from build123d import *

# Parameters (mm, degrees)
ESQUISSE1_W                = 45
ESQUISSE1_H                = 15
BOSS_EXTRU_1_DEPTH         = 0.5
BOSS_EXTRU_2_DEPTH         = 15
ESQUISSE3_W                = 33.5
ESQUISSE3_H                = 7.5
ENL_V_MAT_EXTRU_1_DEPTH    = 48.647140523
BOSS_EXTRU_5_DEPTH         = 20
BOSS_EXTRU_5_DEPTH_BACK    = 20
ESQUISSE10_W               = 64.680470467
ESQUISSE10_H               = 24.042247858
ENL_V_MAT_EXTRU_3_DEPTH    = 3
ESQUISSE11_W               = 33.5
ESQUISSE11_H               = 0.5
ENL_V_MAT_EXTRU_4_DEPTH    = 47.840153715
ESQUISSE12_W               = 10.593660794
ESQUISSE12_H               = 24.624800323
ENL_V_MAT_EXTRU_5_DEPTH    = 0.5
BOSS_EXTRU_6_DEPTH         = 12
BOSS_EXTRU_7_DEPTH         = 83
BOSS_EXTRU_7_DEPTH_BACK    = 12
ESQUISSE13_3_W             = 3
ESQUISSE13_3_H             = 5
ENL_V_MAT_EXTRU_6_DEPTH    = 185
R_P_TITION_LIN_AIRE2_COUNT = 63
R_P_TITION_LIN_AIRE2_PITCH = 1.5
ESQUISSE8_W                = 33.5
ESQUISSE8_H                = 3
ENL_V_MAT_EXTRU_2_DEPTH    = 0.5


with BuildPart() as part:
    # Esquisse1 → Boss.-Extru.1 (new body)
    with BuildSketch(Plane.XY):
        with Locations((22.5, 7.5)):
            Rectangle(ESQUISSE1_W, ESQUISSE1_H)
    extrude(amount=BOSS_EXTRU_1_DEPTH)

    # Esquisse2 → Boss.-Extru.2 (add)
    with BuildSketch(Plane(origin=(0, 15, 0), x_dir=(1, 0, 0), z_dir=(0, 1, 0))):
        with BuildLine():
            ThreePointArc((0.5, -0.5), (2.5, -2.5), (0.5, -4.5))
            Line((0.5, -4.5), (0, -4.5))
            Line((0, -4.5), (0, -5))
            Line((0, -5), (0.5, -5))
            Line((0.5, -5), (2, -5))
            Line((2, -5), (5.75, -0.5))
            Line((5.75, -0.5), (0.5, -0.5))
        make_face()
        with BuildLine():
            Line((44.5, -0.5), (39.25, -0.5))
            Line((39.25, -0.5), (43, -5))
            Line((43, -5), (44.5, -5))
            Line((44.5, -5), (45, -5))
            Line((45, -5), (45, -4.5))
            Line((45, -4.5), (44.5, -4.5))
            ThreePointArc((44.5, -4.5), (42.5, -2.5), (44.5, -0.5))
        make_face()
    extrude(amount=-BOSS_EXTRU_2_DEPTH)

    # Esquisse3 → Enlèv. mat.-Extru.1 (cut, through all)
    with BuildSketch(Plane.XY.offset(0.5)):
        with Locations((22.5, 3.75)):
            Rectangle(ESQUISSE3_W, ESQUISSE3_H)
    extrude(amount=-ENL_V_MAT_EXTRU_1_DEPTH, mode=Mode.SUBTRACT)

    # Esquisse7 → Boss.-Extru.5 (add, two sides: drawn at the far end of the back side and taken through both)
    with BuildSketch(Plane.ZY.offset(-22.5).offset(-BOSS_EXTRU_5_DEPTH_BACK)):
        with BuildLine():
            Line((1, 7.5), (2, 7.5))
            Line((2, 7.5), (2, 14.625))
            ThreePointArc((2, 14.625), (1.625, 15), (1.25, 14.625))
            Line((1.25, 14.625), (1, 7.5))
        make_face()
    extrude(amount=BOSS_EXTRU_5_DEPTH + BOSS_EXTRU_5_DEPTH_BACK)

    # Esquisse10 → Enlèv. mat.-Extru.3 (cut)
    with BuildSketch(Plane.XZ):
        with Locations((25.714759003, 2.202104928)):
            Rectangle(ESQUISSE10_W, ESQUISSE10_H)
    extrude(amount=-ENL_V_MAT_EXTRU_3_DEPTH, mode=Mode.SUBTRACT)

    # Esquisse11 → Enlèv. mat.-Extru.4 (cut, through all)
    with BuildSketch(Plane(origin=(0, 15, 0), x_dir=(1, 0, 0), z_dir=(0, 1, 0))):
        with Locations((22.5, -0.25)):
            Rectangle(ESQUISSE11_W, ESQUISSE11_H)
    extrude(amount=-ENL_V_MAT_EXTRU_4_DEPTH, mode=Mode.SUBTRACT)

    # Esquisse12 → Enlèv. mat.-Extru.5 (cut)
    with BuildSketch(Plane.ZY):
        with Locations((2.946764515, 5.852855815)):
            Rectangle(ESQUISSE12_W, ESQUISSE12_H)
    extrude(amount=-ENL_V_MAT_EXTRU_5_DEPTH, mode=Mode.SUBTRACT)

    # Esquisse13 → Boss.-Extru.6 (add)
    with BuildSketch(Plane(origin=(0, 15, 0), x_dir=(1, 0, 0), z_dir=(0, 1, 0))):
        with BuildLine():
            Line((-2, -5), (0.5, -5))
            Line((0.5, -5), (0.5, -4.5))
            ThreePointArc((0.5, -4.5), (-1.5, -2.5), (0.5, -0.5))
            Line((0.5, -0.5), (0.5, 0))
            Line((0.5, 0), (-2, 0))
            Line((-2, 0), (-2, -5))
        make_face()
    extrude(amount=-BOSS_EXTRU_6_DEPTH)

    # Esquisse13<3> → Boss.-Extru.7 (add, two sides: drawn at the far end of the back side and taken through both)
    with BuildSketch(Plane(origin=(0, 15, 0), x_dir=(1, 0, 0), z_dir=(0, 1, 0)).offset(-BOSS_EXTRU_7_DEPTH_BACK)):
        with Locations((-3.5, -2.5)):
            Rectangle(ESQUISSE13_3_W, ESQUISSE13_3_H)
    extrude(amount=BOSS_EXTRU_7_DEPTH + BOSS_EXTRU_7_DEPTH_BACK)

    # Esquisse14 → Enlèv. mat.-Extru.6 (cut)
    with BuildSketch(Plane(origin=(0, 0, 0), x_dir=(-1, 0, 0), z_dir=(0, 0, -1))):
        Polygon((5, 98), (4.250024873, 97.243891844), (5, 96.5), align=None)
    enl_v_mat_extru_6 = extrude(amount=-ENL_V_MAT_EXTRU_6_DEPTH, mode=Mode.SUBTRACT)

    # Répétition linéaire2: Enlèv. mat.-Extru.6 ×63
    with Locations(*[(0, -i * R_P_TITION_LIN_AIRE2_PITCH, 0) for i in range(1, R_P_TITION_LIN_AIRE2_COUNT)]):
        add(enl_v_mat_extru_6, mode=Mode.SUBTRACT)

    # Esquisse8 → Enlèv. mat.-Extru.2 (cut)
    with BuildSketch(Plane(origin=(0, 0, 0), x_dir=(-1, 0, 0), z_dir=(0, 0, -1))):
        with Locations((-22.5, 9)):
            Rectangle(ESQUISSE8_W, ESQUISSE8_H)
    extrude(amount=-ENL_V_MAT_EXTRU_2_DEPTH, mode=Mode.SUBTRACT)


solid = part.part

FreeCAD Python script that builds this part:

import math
import FreeCAD as App
import Part
import Sketcher
from FreeCAD import Vector

doc = App.newDocument("Part")
body = doc.addObject("PartDesign::Body", "Body")

sketch1 = body.newObject("Sketcher::SketchObject", "Sketch")
sketch1.AttachmentSupport = (doc.getObject("XY_Plane"), [""])
sketch1.MapMode = "FlatFace"
sketch1.addGeometry([
    Part.LineSegment(Vector(0, 15, 0), Vector(0, 0, 0)),
    Part.LineSegment(Vector(0, 0, 0), Vector(45, 0, 0)),
    Part.LineSegment(Vector(45, 0, 0), Vector(45, 15, 0)),
    Part.LineSegment(Vector(45, 15, 0), Vector(0, 15, 0)),
], False)
sketch1.addConstraint([
    Sketcher.Constraint("Coincident", 0, 2, 1, 1),
    Sketcher.Constraint("Coincident", 1, 2, 2, 1),
    Sketcher.Constraint("Coincident", 2, 2, 3, 1),
    Sketcher.Constraint("Coincident", 3, 2, 0, 1),
    Sketcher.Constraint("Vertical", 0),
    Sketcher.Constraint("Horizontal", 1),
    Sketcher.Constraint("Vertical", 2),
    Sketcher.Constraint("Horizontal", 3),
    Sketcher.Constraint("Coincident", 0, 2, -1, 1),
    Sketcher.Constraint("DistanceX", 1, 1, 1, 2, 45.0),
    Sketcher.Constraint("DistanceY", 0, 2, 0, 1, 15.0),
])
pad1 = body.newObject("PartDesign::Pad", "Pad")
pad1.Profile = sketch1
pad1.Length = 0.5

sketch2 = body.newObject("Sketcher::SketchObject", "Sketch001")
sketch2.AttachmentSupport = (doc.getObject("XZ_Plane"), [""])
sketch2.MapMode = "FlatFace"
sketch2.AttachmentOffset = App.Placement(Vector(0, 0, -15), App.Rotation())
sketch2.addGeometry([
    Part.ArcOfCircle(Part.Circle(Vector(0.5, 2.5, 0), Vector(0, 0, 1), 2), math.radians(-90), math.radians(90)),
    Part.LineSegment(Vector(0.5, 4.5, 0), Vector(0, 4.5, 0)),
    Part.LineSegment(Vector(0, 4.5, 0), Vector(0, 5, 0)),
    Part.LineSegment(Vector(0, 5, 0), Vector(2, 5, 0)),
    Part.LineSegment(Vector(2, 5, 0), Vector(5.75, 0.5, 0)),
    Part.LineSegment(Vector(5.75, 0.5, 0), Vector(0.5, 0.5, 0)),
    Part.LineSegment(Vector(44.5, 0.5, 0), Vector(39.25, 0.5, 0)),
    Part.LineSegment(Vector(39.25, 0.5, 0), Vector(43, 5, 0)),
    Part.LineSegment(Vector(43, 5, 0), Vector(45, 5, 0)),
    Part.LineSegment(Vector(45, 5, 0), Vector(45, 4.5, 0)),
    Part.LineSegment(Vector(45, 4.5, 0), Vector(44.5, 4.5, 0)),
    Part.ArcOfCircle(Part.Circle(Vector(44.5, 2.5, 0), Vector(0, 0, 1), 2), math.radians(90), math.radians(270)),
], False)
sketch2.addConstraint([
    Sketcher.Constraint("Tangent", 0, 2, 1, 1),
    Sketcher.Constraint("Coincident", 1, 2, 2, 1),
    Sketcher.Constraint("Coincident", 2, 2, 3, 1),
    Sketcher.Constraint("Coincident", 3, 2, 4, 1),
    Sketcher.Constraint("Coincident", 4, 2, 5, 1),
    Sketcher.Constraint("Tangent", 5, 2, 0, 1),
    Sketcher.Constraint("Coincident", 6, 2, 7, 1),
    Sketcher.Constraint("Coincident", 7, 2, 8, 1),
    Sketcher.Constraint("Coincident", 8, 2, 9, 1),
    Sketcher.Constraint("Coincident", 9, 2, 10, 1),
    Sketcher.Constraint("Tangent", 10, 2, 11, 1),
    Sketcher.Constraint("Tangent", 11, 2, 6, 1),
    Sketcher.Constraint("Horizontal", 1),
    Sketcher.Constraint("Vertical", 2),
    Sketcher.Constraint("Horizontal", 3),
    Sketcher.Constraint("Horizontal", 5),
    Sketcher.Constraint("Horizontal", 6),
    Sketcher.Constraint("Horizontal", 8),
    Sketcher.Constraint("Vertical", 9),
    Sketcher.Constraint("Horizontal", 10),
    Sketcher.Constraint("Equal", 0, 11),
    Sketcher.Constraint("PointOnObject", 1, 2, -2),
    Sketcher.Constraint("Horizontal", 0, 3, 11, 3),
    Sketcher.Constraint("Horizontal", 3, 2, 7, 2),
    Sketcher.Constraint("Equal", 5, 6),
    Sketcher.Constraint("Equal", 3, 8),
    Sketcher.Constraint("Equal", 1, 10),
    Sketcher.Constraint("Equal", 10, 2),
    Sketcher.Constraint("Radius", 0, 2.0),
    Sketcher.Constraint("DistanceX", 3, 1, 3, 2, 2.0),
    Sketcher.Constraint("DistanceX", 1, 2, 1, 1, 0.5),
    Sketcher.Constraint("DistanceY", -1, 1, 2, 2, 5.0),
    Sketcher.Constraint("DistanceX", -1, 1, 7, 2, 43.0),
    Sketcher.Constraint("DistanceX", 5, 2, 5, 1, 5.25),
])
pad2 = body.newObject("PartDesign::Pad", "Pad001")
pad2.Profile = sketch2
pad2.Length = 15

sketch3 = body.newObject("Sketcher::SketchObject", "Sketch002")
sketch3.AttachmentSupport = (doc.getObject("XY_Plane"), [""])
sketch3.MapMode = "FlatFace"
sketch3.AttachmentOffset = App.Placement(Vector(0, 0, 0.5), App.Rotation())
sketch3.addGeometry([
    Part.LineSegment(Vector(5.75, 7.5, 0), Vector(5.75, 0, 0)),
    Part.LineSegment(Vector(5.75, 0, 0), Vector(39.25, 0, 0)),
    Part.LineSegment(Vector(39.25, 0, 0), Vector(39.25, 7.5, 0)),
    Part.LineSegment(Vector(39.25, 7.5, 0), Vector(5.75, 7.5, 0)),
], False)
sketch3.addConstraint([
    Sketcher.Constraint("Coincident", 0, 2, 1, 1),
    Sketcher.Constraint("Coincident", 1, 2, 2, 1),
    Sketcher.Constraint("Coincident", 2, 2, 3, 1),
    Sketcher.Constraint("Coincident", 3, 2, 0, 1),
    Sketcher.Constraint("Vertical", 0),
    Sketcher.Constraint("Horizontal", 1),
    Sketcher.Constraint("Vertical", 2),
    Sketcher.Constraint("Horizontal", 3),
    Sketcher.Constraint("PointOnObject", 0, 2, -1),
    Sketcher.Constraint("DistanceX", 1, 1, 1, 2, 33.5),
    Sketcher.Constraint("DistanceY", 0, 2, 0, 1, 7.5),
    Sketcher.Constraint("DistanceX", -1, 1, 0, 2, 5.75),
])
pocket1 = body.newObject("PartDesign::Pocket", "Pocket")
pocket1.Profile = sketch3
pocket1.Type = "ThroughAll"

sketch4 = body.newObject("Sketcher::SketchObject", "Sketch003")
sketch4.AttachmentSupport = (doc.getObject("YZ_Plane"), [""])
sketch4.MapMode = "FlatFace"
sketch4.AttachmentOffset = App.Placement(Vector(0, 0, 22.5), App.Rotation())
sketch4.addGeometry([
    Part.LineSegment(Vector(7.5, 1, 0), Vector(7.5, 2, 0)),
    Part.LineSegment(Vector(7.5, 2, 0), Vector(14.625, 2, 0)),
    Part.ArcOfCircle(Part.Circle(Vector(14.625, 1.625, 0), Vector(0, 0, 1), 0.375), math.radians(-90), math.radians(90)),
    Part.LineSegment(Vector(14.625, 1.25, 0), Vector(7.5, 1, 0)),
], False)
sketch4.addConstraint([
    Sketcher.Constraint("Coincident", 0, 2, 1, 1),
    Sketcher.Constraint("Tangent", 1, 2, 2, 2),
    Sketcher.Constraint("Coincident", 2, 1, 3, 1),
    Sketcher.Constraint("Coincident", 3, 2, 0, 1),
    Sketcher.Constraint("Vertical", 0),
    Sketcher.Constraint("Horizontal", 1),
    Sketcher.Constraint("Vertical", 1, 2, 2, 1),
    Sketcher.Constraint("DistanceY", 0, 1, 0, 2, 1.0),
    Sketcher.Constraint("DistanceY", -1, 1, 0, 2, 2.0),
    Sketcher.Constraint("Radius", 2, 0.375),
    Sketcher.Constraint("DistanceX", -1, 1, 0, 2, 7.5),
    Sketcher.Constraint("DistanceX", 1, 1, 1, 2, 7.125),
])
pad3 = body.newObject("PartDesign::Pad", "Pad002")
pad3.Profile = sketch4
pad3.Type = "TwoLengths"
pad3.Length = 20
pad3.Length2 = 20
pad3.Reversed = True

sketch5 = body.newObject("Sketcher::SketchObject", "Sketch004")
sketch5.AttachmentSupport = (doc.getObject("XZ_Plane"), [""])
sketch5.MapMode = "FlatFace"
sketch5.addGeometry([
    Part.LineSegment(Vector(-6.625476, 14.223229, 0), Vector(-6.625476, -9.819019, 0)),
    Part.LineSegment(Vector(-6.625476, -9.819019, 0), Vector(58.054994, -9.819019, 0)),
    Part.LineSegment(Vector(58.054994, -9.819019, 0), Vector(58.054994, 14.223229, 0)),
    Part.LineSegment(Vector(58.054994, 14.223229, 0), Vector(-6.625476, 14.223229, 0)),
], False)
sketch5.addConstraint([
    Sketcher.Constraint("Coincident", 0, 2, 1, 1),
    Sketcher.Constraint("Coincident", 1, 2, 2, 1),
    Sketcher.Constraint("Coincident", 2, 2, 3, 1),
    Sketcher.Constraint("Coincident", 3, 2, 0, 1),
    Sketcher.Constraint("Vertical", 0),
    Sketcher.Constraint("Horizontal", 1),
    Sketcher.Constraint("Vertical", 2),
    Sketcher.Constraint("Horizontal", 3),
    Sketcher.Constraint("DistanceX", 1, 1, 1, 2, 64.68047),
    Sketcher.Constraint("DistanceY", 0, 2, 0, 1, 24.042248),
    Sketcher.Constraint("DistanceY", 0, 2, -1, 1, 9.819019),
    Sketcher.Constraint("DistanceX", 0, 2, -1, 1, 6.625476),
])
pocket2 = body.newObject("PartDesign::Pocket", "Pocket001")
pocket2.Profile = sketch5
pocket2.Length = 3

sketch6 = body.newObject("Sketcher::SketchObject", "Sketch005")
sketch6.AttachmentSupport = (doc.getObject("XZ_Plane"), [""])
sketch6.MapMode = "FlatFace"
sketch6.AttachmentOffset = App.Placement(Vector(0, 0, -15), App.Rotation())
sketch6.addGeometry([
    Part.LineSegment(Vector(5.75, 0, 0), Vector(5.75, 0.5, 0)),
    Part.LineSegment(Vector(5.75, 0.5, 0), Vector(39.25, 0.5, 0)),
    Part.LineSegment(Vector(39.25, 0.5, 0), Vector(39.25, 0, 0)),
    Part.LineSegment(Vector(39.25, 0, 0), Vector(5.75, 0, 0)),
], False)
sketch6.addConstraint([
    Sketcher.Constraint("Coincident", 0, 2, 1, 1),
    Sketcher.Constraint("Coincident", 1, 2, 2, 1),
    Sketcher.Constraint("Coincident", 2, 2, 3, 1),
    Sketcher.Constraint("Coincident", 3, 2, 0, 1),
    Sketcher.Constraint("Vertical", 0),
    Sketcher.Constraint("Horizontal", 1),
    Sketcher.Constraint("Vertical", 2),
    Sketcher.Constraint("Horizontal", 3),
    Sketcher.Constraint("PointOnObject", 2, 2, -1),
    Sketcher.Constraint("DistanceX", 1, 1, 1, 2, 33.5),
    Sketcher.Constraint("DistanceY", 0, 1, 0, 2, 0.5),
    Sketcher.Constraint("DistanceX", -1, 1, 0, 2, 5.75),
])
pocket3 = body.newObject("PartDesign::Pocket", "Pocket002")
pocket3.Profile = sketch6
pocket3.Type = "ThroughAll"
pocket3.Reversed = True

sketch7 = body.newObject("Sketcher::SketchObject", "Sketch006")
sketch7.AttachmentSupport = (doc.getObject("YZ_Plane"), [""])
sketch7.MapMode = "FlatFace"
sketch7.addGeometry([
    Part.LineSegment(Vector(18.165256, -2.350066, 0), Vector(-6.459544, -2.350066, 0)),
    Part.LineSegment(Vector(-6.459544, -2.350066, 0), Vector(-6.459544, 8.243595, 0)),
    Part.LineSegment(Vector(-6.459544, 8.243595, 0), Vector(18.165256, 8.243595, 0)),
    Part.LineSegment(Vector(18.165256, 8.243595, 0), Vector(18.165256, -2.350066, 0)),
], False)
sketch7.addConstraint([
    Sketcher.Constraint("Coincident", 0, 2, 1, 1),
    Sketcher.Constraint("Coincident", 1, 2, 2, 1),
    Sketcher.Constraint("Coincident", 2, 2, 3, 1),
    Sketcher.Constraint("Coincident", 3, 2, 0, 1),
    Sketcher.Constraint("Horizontal", 0),
    Sketcher.Constraint("Vertical", 1),
    Sketcher.Constraint("Horizontal", 2),
    Sketcher.Constraint("Vertical", 3),
    Sketcher.Constraint("DistanceX", 0, 2, 0, 1, 24.6248),
    Sketcher.Constraint("DistanceY", 1, 1, 1, 2, 10.593661),
    Sketcher.Constraint("DistanceX", 0, 2, -1, 1, 6.459544),
    Sketcher.Constraint("DistanceY", 0, 2, -1, 1, 2.350066),
])
pocket4 = body.newObject("PartDesign::Pocket", "Pocket003")
pocket4.Profile = sketch7
pocket4.Length = 0.5
pocket4.Reversed = True

sketch8 = body.newObject("Sketcher::SketchObject", "Sketch007")
sketch8.AttachmentSupport = (doc.getObject("XZ_Plane"), [""])
sketch8.MapMode = "FlatFace"
sketch8.AttachmentOffset = App.Placement(Vector(0, 0, -15), App.Rotation())
sketch8.addGeometry([
    Part.LineSegment(Vector(-2, 5, 0), Vector(0.5, 5, 0)),
    Part.LineSegment(Vector(0.5, 5, 0), Vector(0.5, 4.5, 0)),
    Part.ArcOfCircle(Part.Circle(Vector(0.5, 2.5, 0), Vector(0, 0, 1), 2), math.radians(90), math.radians(270)),
    Part.LineSegment(Vector(0.5, 0.5, 0), Vector(0.5, 0, 0)),
    Part.LineSegment(Vector(0.5, 0, 0), Vector(-2, 0, 0)),
    Part.LineSegment(Vector(-2, 0, 0), Vector(-2, 5, 0)),
], False)
sketch8.addConstraint([
    Sketcher.Constraint("Coincident", 0, 2, 1, 1),
    Sketcher.Constraint("Coincident", 1, 2, 2, 1),
    Sketcher.Constraint("Coincident", 2, 2, 3, 1),
    Sketcher.Constraint("Coincident", 3, 2, 4, 1),
    Sketcher.Constraint("Coincident", 4, 2, 5, 1),
    Sketcher.Constraint("Coincident", 5, 2, 0, 1),
    Sketcher.Constraint("Horizontal", 0),
    Sketcher.Constraint("Vertical", 1),
    Sketcher.Constraint("Vertical", 3),
    Sketcher.Constraint("Horizontal", 4),
    Sketcher.Constraint("Vertical", 5),
    Sketcher.Constraint("PointOnObject", 3, 2, -1),
    Sketcher.Constraint("Vertical", 2, 3, 0, 2),
    Sketcher.Constraint("Vertical", 1, 2, 2, 2),
    Sketcher.Constraint("Equal", 1, 3),
    Sketcher.Constraint("Radius", 2, 2.0),
    Sketcher.Constraint("DistanceY", 5, 1, 5, 2, 5.0),
    Sketcher.Constraint("DistanceX", 0, 1, 0, 2, 2.5),
    Sketcher.Constraint("DistanceX", 4, 2, -1, 1, 2.0),
])
pad4 = body.newObject("PartDesign::Pad", "Pad003")
pad4.Profile = sketch8
pad4.Length = 12

sketch9 = body.newObject("Sketcher::SketchObject", "Sketch008")
sketch9.AttachmentSupport = (doc.getObject("XZ_Plane"), [""])
sketch9.MapMode = "FlatFace"
sketch9.AttachmentOffset = App.Placement(Vector(0, 0, -15), App.Rotation())
sketch9.addGeometry([
    Part.LineSegment(Vector(-5, 0, 0), Vector(-5, 5, 0)),
    Part.LineSegment(Vector(-5, 5, 0), Vector(-2, 5, 0)),
    Part.LineSegment(Vector(-2, 5, 0), Vector(-2, 0, 0)),
    Part.LineSegment(Vector(-2, 0, 0), Vector(-5, 0, 0)),
], False)
sketch9.addConstraint([
    Sketcher.Constraint("Coincident", 0, 2, 1, 1),
    Sketcher.Constraint("Coincident", 1, 2, 2, 1),
    Sketcher.Constraint("Coincident", 2, 2, 3, 1),
    Sketcher.Constraint("Coincident", 3, 2, 0, 1),
    Sketcher.Constraint("Vertical", 0),
    Sketcher.Constraint("Horizontal", 1),
    Sketcher.Constraint("Vertical", 2),
    Sketcher.Constraint("Horizontal", 3),
    Sketcher.Constraint("PointOnObject", 2, 2, -1),
    Sketcher.Constraint("DistanceX", 1, 1, 1, 2, 3.0),
    Sketcher.Constraint("DistanceY", 0, 1, 0, 2, 5.0),
    Sketcher.Constraint("DistanceX", 0, 2, -1, 1, 5.0),
])
pad5 = body.newObject("PartDesign::Pad", "Pad004")
pad5.Profile = sketch9
pad5.Type = "TwoLengths"
pad5.Length = 83
pad5.Length2 = 12
pad5.Reversed = True

sketch10 = body.newObject("Sketcher::SketchObject", "Sketch009")
sketch10.AttachmentSupport = (doc.getObject("XY_Plane"), [""])
sketch10.MapMode = "FlatFace"
sketch10.addGeometry([
    Part.LineSegment(Vector(-5, 98, 0), Vector(-4.250025, 97.243892, 0)),
    Part.LineSegment(Vector(-4.250025, 97.243892, 0), Vector(-5, 96.5, 0)),
    Part.LineSegment(Vector(-5, 96.5, 0), Vector(-5, 98, 0)),
], False)
sketch10.addConstraint([
    Sketcher.Constraint("Coincident", 0, 2, 1, 1),
    Sketcher.Constraint("Coincident", 1, 2, 2, 1),
    Sketcher.Constraint("Coincident", 2, 2, 0, 1),
    Sketcher.Constraint("Vertical", 2),
    Sketcher.Constraint("Perpendicular", 0, 1),
    Sketcher.Constraint("DistanceY", 2, 1, 2, 2, 1.5),
    Sketcher.Constraint("DistanceX", 1, 2, -1, 1, 5.0),
    Sketcher.Constraint("DistanceY", -1, 1, 2, 2, 98.0),
    Sketcher.Constraint("Distance", 0, 1.064971),
])
pocket5 = body.newObject("PartDesign::Pocket", "Pocket004")
pocket5.Profile = sketch10
pocket5.Length = 185
pocket5.Reversed = True
doc.recompute()

linearpattern = body.newObject("PartDesign::LinearPattern", "LinearPattern")
linearpattern.Originals = [pocket5]
linearpattern.Direction = (doc.getObject("Y_Axis"), [""])
linearpattern.Mode = "offset"
linearpattern.Offset = 1.5
linearpattern.Occurrences = 63
linearpattern.Reversed = True
body.Tip = linearpattern

sketch11 = body.newObject("Sketcher::SketchObject", "Sketch010")
sketch11.AttachmentSupport = (doc.getObject("XY_Plane"), [""])
sketch11.MapMode = "FlatFace"
sketch11.addGeometry([
    Part.LineSegment(Vector(39.25, 10.5, 0), Vector(39.25, 7.5, 0)),
    Part.LineSegment(Vector(39.25, 7.5, 0), Vector(5.75, 7.5, 0)),
    Part.LineSegment(Vector(5.75, 7.5, 0), Vector(5.75, 10.5, 0)),
    Part.LineSegment(Vector(5.75, 10.5, 0), Vector(39.25, 10.5, 0)),
], False)
sketch11.addConstraint([
    Sketcher.Constraint("Coincident", 0, 2, 1, 1),
    Sketcher.Constraint("Coincident", 1, 2, 2, 1),
    Sketcher.Constraint("Coincident", 2, 2, 3, 1),
    Sketcher.Constraint("Coincident", 3, 2, 0, 1),
    Sketcher.Constraint("Vertical", 0),
    Sketcher.Constraint("Horizontal", 1),
    Sketcher.Constraint("Vertical", 2),
    Sketcher.Constraint("Horizontal", 3),
    Sketcher.Constraint("DistanceY", 0, 2, 0, 1, 3.0),
    Sketcher.Constraint("DistanceX", 1, 2, 1, 1, 33.5),
    Sketcher.Constraint("DistanceY", -1, 1, 0, 2, 7.5),
    Sketcher.Constraint("DistanceX", -1, 1, 0, 2, 39.25),
])
pocket6 = body.newObject("PartDesign::Pocket", "Pocket005")
pocket6.Profile = sketch11
pocket6.Length = 0.5
pocket6.Reversed = True

doc.recompute()
